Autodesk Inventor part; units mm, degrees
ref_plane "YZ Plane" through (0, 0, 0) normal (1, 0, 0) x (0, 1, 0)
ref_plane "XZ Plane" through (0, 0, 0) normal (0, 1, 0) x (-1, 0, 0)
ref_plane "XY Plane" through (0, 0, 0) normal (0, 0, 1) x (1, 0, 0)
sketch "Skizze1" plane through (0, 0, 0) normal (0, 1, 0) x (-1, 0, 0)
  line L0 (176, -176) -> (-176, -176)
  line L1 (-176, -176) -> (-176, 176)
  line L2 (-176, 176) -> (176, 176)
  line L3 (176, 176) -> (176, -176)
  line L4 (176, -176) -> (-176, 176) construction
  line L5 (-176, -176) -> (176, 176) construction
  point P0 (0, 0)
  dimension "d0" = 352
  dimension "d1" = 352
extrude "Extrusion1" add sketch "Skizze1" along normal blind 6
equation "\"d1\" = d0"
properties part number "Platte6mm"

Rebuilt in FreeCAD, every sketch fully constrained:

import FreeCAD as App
import Part
import Sketcher

V = App.Vector


def add_polygon(sketch, points):
    """Adds a closed chain of lines whose ends are joined by coincident constraints."""
    first, n = sketch.GeometryCount, len(points)
    for a, b in zip(points, points[1:] + points[:1]):
        sketch.addGeometry(Part.LineSegment(App.Vector(*a, 0), App.Vector(*b, 0)), False)
    for i in range(n):
        sketch.addConstraint(Sketcher.Constraint("Coincident", first + i, 2, first + (i + 1) % n, 1))

doc = App.newDocument("Part")
params = doc.addObject("Spreadsheet::Sheet", "Params")
for row, (alias, value) in enumerate([
    ("sketch1_width", "352 mm"),
    ("pad1_length", "6 mm"),
], start=1):
    params.set(f"A{row}", alias)
    params.set(f"B{row}", "=" + value)
    params.setAlias(f"B{row}", alias)

body = doc.addObject("PartDesign::Body", "Body")

# Sketch on XZ plane
sketch1 = body.newObject("Sketcher::SketchObject", "Sketch")
sketch1.AttachmentSupport = (doc.getObject("XZ_Plane"), [""])
sketch1.MapMode = "FlatFace"
add_polygon(sketch1, [(176, -176), (-176, -176), (-176, 176), (176, 176)])  # lines 0-3
sketch1.addConstraint(Sketcher.Constraint("Horizontal", 0))
sketch1.addConstraint(Sketcher.Constraint("Vertical", 1))
sketch1.addConstraint(Sketcher.Constraint("Horizontal", 2))
sketch1.addConstraint(Sketcher.Constraint("Vertical", 3))
sketch1.addConstraint(Sketcher.Constraint("Symmetric", 0, 2, 2, 2, -1, 1))
sketch1.addConstraint(Sketcher.Constraint("Equal", 2, 1))
sketch1.addConstraint(Sketcher.Constraint("DistanceX", 0, 2, 0, 1, 352.0))
sketch1.setExpression("Constraints[10]", "Params.sketch1_width")
pad1 = body.newObject("PartDesign::Pad", "Pad")
pad1.Profile = sketch1
pad1.setExpression("Length", "Params.pad1_length")
pad1.Reversed = True

doc.recompute()
